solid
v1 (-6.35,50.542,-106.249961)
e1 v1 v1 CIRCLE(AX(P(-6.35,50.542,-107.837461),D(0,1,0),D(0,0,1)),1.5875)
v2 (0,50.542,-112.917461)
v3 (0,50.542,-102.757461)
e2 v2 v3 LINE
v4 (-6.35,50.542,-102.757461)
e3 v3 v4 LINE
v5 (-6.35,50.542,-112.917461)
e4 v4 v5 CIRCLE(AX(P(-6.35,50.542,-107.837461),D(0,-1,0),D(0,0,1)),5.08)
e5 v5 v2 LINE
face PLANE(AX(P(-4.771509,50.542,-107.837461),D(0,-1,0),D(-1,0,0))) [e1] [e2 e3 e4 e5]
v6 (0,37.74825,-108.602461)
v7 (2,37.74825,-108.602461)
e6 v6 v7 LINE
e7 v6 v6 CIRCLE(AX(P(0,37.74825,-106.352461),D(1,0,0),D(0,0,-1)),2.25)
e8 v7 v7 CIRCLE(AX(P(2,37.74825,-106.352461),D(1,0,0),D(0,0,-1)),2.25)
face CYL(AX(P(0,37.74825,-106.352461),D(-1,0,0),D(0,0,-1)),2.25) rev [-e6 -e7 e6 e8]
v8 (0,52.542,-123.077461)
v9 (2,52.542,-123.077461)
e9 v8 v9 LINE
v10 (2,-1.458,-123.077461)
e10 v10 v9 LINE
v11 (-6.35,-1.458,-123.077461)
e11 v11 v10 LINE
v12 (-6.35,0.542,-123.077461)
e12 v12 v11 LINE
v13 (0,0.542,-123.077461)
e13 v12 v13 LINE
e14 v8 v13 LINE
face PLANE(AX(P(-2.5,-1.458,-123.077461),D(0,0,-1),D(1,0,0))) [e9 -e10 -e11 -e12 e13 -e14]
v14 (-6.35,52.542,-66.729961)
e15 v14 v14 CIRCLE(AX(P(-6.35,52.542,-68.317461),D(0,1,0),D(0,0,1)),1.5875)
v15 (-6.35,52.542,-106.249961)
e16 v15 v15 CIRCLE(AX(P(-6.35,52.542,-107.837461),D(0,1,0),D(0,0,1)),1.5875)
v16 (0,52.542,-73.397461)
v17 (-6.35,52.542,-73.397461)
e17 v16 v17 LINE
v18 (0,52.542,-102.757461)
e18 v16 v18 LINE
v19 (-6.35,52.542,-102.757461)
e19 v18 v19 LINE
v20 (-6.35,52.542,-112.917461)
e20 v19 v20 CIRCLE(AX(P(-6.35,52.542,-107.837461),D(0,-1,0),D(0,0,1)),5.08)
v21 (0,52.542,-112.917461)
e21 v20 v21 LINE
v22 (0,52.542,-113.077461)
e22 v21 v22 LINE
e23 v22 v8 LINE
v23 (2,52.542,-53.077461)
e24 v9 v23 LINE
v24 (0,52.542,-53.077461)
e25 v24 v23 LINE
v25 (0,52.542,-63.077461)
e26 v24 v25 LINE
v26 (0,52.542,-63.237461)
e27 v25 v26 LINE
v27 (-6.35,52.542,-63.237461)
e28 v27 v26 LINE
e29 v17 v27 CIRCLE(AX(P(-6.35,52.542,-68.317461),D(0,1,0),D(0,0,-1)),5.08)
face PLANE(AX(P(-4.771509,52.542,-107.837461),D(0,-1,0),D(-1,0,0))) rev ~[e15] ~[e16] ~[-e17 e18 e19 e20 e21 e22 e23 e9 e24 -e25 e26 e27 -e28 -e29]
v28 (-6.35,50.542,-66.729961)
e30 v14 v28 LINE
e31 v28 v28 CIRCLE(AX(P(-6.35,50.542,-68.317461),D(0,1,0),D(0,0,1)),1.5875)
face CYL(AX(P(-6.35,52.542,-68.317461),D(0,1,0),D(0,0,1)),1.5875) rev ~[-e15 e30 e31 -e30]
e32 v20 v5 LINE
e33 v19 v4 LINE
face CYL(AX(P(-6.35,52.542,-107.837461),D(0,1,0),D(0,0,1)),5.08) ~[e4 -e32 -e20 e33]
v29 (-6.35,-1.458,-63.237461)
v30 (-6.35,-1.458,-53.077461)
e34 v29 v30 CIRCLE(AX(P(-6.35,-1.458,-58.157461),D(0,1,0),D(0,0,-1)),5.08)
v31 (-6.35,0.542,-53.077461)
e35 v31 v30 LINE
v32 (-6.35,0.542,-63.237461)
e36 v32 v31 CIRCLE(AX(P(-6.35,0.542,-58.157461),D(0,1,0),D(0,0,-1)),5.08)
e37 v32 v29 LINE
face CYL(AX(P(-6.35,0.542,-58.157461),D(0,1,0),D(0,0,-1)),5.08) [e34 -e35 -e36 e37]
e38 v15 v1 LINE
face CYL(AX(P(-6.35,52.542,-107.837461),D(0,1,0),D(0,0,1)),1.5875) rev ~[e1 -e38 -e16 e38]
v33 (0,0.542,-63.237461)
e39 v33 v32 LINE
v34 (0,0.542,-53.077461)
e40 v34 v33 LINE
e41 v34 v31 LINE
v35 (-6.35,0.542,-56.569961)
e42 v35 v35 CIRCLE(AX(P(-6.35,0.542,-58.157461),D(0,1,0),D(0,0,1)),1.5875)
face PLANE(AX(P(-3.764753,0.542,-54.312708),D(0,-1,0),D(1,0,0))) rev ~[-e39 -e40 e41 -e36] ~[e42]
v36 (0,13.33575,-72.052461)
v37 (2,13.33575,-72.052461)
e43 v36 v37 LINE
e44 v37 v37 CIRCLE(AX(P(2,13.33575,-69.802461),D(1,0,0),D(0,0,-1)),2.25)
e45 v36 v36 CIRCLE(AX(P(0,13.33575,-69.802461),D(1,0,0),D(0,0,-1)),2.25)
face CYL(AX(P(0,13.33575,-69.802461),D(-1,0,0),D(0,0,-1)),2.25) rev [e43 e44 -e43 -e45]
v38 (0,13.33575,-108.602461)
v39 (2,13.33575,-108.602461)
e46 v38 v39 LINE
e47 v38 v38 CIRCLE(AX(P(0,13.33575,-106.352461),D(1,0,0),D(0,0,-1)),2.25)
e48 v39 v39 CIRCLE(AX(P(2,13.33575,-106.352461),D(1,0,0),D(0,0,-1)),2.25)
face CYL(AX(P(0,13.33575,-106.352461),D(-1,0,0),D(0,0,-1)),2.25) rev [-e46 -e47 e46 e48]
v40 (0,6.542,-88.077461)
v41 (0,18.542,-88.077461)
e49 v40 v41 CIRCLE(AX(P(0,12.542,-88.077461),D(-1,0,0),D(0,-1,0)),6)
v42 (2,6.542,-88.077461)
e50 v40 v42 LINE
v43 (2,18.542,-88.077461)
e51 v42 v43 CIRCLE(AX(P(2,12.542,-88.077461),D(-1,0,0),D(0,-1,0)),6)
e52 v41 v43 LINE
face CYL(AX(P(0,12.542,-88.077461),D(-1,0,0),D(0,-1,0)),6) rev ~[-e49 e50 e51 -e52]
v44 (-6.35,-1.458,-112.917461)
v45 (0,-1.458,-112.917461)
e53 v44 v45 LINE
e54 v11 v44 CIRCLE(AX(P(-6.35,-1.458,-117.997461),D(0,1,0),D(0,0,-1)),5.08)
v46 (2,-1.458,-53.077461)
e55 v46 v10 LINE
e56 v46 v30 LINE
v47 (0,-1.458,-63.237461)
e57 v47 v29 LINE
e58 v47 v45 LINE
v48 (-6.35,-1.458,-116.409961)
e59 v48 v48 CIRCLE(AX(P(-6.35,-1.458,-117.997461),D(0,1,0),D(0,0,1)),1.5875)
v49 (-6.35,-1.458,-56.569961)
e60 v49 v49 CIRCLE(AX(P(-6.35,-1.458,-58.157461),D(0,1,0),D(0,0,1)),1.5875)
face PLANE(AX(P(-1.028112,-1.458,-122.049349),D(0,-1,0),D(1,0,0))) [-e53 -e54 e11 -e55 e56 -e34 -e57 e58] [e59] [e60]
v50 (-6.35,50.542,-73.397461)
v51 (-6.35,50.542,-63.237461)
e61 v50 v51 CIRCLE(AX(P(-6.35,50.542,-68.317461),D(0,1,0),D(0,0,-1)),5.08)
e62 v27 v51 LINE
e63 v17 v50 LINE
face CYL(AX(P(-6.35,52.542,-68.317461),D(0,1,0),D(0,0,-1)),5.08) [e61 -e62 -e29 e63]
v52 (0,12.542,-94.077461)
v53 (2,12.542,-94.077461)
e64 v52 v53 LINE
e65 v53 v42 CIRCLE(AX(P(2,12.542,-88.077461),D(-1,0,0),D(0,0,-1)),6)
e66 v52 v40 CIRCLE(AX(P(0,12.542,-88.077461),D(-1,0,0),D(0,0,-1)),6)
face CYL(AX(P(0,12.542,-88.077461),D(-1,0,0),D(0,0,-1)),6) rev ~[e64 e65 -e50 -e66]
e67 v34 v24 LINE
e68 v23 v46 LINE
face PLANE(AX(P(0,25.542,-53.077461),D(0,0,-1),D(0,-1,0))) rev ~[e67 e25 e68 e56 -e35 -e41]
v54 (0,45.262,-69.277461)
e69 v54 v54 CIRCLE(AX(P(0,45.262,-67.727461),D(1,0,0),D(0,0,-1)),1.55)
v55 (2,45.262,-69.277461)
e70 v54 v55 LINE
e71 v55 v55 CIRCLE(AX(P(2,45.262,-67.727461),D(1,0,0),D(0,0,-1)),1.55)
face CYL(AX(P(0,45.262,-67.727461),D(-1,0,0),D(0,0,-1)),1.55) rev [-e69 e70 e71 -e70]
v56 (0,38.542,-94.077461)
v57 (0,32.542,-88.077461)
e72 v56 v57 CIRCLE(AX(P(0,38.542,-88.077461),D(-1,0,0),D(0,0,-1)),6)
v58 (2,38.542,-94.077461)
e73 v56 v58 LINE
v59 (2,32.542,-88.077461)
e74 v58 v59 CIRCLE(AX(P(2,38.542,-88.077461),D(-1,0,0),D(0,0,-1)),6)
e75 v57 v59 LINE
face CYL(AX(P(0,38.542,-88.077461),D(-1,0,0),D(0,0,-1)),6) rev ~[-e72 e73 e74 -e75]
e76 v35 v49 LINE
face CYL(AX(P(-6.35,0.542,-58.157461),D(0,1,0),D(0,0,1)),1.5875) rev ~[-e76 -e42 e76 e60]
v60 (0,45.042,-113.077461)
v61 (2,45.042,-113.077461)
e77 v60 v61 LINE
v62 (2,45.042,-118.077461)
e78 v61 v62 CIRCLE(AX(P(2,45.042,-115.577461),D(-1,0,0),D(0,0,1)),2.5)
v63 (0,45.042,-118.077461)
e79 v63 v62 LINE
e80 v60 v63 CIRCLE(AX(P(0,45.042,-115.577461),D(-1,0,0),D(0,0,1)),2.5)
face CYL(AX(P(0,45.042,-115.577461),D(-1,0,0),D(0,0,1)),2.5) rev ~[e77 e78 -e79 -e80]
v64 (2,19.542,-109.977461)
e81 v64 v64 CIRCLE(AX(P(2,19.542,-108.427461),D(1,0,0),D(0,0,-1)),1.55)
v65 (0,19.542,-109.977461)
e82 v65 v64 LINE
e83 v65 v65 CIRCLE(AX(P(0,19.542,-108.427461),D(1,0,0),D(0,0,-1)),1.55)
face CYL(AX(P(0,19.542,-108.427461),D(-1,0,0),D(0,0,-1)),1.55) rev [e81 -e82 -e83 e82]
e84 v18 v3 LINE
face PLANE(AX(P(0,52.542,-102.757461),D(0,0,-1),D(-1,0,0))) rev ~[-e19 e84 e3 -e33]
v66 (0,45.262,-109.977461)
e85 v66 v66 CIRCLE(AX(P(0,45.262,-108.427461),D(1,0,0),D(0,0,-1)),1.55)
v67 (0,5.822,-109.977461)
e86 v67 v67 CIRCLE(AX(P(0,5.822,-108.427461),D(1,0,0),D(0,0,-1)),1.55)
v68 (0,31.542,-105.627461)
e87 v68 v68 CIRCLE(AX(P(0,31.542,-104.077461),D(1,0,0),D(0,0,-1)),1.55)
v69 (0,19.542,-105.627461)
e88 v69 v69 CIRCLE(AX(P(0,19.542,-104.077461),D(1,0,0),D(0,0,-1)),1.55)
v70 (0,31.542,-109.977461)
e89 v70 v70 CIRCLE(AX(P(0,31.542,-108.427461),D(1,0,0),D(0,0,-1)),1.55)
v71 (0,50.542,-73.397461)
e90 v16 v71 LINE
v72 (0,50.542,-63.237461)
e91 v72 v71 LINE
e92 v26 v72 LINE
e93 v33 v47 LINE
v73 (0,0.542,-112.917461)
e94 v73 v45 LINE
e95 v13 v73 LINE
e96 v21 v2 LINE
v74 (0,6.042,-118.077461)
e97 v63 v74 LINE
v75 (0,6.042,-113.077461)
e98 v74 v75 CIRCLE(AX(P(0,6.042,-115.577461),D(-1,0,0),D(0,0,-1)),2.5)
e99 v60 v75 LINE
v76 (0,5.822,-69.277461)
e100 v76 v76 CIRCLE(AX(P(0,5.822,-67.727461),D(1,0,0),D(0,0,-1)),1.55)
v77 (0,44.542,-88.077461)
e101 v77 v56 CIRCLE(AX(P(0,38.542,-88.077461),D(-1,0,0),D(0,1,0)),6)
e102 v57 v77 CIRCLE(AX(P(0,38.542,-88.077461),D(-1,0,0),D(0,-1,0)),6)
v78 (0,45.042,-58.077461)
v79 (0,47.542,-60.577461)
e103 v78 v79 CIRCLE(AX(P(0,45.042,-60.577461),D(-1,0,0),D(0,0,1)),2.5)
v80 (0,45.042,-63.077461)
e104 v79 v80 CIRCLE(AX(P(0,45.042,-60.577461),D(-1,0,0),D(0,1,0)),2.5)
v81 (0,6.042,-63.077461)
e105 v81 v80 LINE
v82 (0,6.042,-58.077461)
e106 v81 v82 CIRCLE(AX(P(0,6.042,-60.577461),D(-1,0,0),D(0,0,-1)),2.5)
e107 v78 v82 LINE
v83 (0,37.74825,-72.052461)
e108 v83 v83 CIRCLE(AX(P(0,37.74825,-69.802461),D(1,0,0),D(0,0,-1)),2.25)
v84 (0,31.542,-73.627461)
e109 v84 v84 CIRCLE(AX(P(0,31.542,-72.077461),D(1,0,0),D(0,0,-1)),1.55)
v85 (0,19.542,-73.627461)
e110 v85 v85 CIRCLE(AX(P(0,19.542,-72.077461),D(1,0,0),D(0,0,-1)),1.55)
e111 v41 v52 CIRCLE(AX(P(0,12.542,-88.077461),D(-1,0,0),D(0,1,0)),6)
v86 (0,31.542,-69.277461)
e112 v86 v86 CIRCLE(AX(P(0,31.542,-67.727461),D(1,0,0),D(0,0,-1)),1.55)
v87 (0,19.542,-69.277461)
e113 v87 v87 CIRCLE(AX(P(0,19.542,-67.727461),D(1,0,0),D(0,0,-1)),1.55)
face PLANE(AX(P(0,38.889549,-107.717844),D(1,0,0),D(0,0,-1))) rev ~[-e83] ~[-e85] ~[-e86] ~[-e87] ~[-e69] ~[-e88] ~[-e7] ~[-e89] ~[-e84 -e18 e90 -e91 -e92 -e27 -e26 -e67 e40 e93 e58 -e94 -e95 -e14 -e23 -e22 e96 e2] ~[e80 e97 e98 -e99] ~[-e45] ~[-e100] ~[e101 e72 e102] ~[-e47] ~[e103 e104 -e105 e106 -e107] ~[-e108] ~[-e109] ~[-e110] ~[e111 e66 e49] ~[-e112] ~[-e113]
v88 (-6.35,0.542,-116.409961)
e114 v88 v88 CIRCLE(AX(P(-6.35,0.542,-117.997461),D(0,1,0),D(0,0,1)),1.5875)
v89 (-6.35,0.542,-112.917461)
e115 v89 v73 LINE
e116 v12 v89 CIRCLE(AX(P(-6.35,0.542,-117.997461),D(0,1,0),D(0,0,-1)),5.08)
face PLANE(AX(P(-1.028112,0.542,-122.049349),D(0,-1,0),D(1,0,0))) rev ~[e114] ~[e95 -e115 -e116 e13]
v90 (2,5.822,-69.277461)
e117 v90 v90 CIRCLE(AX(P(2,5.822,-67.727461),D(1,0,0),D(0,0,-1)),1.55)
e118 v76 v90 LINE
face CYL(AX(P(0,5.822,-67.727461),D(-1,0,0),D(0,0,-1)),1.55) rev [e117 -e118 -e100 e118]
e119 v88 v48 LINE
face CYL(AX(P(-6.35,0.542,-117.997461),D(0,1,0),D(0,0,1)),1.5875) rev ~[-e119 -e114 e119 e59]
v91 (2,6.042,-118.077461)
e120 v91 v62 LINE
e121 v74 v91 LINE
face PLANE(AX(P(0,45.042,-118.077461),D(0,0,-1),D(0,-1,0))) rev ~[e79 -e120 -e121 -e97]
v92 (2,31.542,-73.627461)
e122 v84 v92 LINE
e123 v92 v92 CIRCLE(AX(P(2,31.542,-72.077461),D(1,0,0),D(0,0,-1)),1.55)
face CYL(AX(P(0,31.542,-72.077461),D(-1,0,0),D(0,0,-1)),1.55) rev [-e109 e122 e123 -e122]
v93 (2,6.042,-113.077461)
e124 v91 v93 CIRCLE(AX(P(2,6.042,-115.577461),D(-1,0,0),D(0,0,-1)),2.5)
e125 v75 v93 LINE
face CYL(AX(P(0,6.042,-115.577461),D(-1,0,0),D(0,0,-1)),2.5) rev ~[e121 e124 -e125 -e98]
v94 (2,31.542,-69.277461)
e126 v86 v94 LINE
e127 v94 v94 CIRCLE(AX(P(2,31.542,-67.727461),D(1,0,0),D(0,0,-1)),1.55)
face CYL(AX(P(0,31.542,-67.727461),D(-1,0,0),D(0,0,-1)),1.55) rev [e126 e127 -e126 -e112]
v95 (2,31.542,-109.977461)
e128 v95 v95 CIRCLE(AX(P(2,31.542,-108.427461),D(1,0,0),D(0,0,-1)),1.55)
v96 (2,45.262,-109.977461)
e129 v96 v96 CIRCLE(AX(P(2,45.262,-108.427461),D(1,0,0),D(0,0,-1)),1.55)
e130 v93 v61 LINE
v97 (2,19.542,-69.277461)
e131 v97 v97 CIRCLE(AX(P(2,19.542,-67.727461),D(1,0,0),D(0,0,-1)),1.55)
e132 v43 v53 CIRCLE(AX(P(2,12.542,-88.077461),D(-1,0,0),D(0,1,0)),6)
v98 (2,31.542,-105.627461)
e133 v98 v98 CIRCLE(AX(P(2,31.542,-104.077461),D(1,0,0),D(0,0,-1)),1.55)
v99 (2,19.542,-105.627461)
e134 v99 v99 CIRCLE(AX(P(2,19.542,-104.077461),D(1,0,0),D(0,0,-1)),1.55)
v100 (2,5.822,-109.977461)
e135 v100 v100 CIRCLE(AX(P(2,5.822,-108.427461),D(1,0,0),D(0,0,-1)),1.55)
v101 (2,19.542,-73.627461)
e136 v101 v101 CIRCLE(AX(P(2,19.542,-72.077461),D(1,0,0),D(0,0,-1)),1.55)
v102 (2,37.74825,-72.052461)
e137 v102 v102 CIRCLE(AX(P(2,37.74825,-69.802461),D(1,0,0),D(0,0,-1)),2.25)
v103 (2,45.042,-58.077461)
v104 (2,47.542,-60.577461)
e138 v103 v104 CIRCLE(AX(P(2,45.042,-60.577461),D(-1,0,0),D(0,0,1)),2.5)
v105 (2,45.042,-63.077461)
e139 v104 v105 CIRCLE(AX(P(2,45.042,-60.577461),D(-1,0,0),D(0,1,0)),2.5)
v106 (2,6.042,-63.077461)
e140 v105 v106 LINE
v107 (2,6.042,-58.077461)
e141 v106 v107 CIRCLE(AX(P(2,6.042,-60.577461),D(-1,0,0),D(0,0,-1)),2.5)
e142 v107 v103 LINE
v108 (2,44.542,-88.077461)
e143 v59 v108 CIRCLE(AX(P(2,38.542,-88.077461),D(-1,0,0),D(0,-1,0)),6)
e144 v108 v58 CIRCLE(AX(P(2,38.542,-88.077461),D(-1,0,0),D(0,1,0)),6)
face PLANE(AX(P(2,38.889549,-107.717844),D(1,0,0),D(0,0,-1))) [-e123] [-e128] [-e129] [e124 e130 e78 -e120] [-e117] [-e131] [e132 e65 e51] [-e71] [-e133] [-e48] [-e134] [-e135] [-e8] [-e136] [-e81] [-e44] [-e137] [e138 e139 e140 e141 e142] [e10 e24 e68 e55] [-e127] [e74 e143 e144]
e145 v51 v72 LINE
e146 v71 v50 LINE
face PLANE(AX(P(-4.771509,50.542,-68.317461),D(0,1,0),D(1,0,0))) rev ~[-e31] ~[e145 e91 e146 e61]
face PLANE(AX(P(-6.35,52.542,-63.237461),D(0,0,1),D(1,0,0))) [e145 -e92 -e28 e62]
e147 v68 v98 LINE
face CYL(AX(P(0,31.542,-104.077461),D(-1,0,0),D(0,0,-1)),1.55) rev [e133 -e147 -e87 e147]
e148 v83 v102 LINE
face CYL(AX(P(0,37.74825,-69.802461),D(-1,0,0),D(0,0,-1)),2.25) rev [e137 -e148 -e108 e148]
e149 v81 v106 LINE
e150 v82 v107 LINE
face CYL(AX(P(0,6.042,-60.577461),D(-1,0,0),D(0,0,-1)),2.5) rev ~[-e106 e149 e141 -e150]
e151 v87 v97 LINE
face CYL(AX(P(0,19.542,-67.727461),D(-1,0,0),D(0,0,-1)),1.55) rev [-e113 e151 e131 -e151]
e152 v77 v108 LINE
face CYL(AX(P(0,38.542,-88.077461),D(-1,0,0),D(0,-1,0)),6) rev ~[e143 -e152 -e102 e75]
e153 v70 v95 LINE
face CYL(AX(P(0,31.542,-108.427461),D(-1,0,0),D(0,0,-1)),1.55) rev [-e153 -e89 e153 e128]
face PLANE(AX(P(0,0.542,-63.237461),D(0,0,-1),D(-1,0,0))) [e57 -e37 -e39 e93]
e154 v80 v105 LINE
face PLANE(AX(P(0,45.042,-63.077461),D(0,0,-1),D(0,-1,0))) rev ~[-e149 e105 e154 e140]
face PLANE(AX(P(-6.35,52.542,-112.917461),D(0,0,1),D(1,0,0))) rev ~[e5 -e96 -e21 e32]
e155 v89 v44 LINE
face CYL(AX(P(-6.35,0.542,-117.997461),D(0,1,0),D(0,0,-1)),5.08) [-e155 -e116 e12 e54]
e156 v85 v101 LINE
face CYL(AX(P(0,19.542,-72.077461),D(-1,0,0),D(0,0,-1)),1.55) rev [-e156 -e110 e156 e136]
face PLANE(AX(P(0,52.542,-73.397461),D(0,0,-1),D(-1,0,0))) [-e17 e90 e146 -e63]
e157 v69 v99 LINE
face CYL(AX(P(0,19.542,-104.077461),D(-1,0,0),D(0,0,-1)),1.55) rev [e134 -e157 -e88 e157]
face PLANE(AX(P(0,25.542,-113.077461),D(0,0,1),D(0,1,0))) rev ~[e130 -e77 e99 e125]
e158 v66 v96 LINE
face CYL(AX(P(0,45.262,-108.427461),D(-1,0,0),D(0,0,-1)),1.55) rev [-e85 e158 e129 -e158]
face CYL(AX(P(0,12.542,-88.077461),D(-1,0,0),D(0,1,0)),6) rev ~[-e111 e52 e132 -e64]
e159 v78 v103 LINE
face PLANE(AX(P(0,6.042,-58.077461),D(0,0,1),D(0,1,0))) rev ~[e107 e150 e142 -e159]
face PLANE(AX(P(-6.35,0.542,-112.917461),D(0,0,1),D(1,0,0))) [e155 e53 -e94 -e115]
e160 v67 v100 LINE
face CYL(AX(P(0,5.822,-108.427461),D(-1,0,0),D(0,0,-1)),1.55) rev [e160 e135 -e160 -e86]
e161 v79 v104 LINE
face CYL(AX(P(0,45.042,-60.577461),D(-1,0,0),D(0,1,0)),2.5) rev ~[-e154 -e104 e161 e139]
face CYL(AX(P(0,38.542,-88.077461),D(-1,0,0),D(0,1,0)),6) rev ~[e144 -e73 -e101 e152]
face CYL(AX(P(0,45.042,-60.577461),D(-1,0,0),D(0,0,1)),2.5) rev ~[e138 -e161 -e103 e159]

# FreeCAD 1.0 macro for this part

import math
import FreeCAD as App
import Part
import Sketcher
from FreeCAD import Vector
Q = App.Units.Quantity

doc = App.newDocument("Part")
params = doc.addObject("Spreadsheet::Sheet", "Params")
for row, (alias, value) in enumerate([
    ("sketch1_diameter", "3 mm"),
    ("sketch1_radius", "6 mm"),
    ("sketch1_diameter2", "4.5 mm"),
    ("sketch1_radius2", "2.5 mm"),
    ("sketch1_width", "54 mm"),
    ("pad1_length", "2 mm"),
    ("sketch2_radius", "2.5 mm"),
    ("sketch2_width", "2.5 mm"),
    ("pad2_length", "2 mm"),
    ("pocket1_length", "10 mm"),
    ("sketch4_radius", "2.5 mm"),
    ("sketch4_width", "2.5 mm"),
    ("pad3_length", "2 mm"),
    ("sketch5_diameter", "3 mm"),
    ("sketch5_diameter2", "3.1 mm"),
    ("pocket2_length", "2 mm"),
    ("sketch6_radius", "5.08 mm"),
    ("sketch6_width", "6.35 mm"),
    ("pad4_length", "2 mm"),
    ("pocket3_length", "2 mm"),
    ("sketch8_radius", "5.08 mm"),
    ("sketch8_width", "6.35 mm"),
    ("pad5_length", "2 mm"),
], start=1):
    params.set(f"A{row}", alias)
    params.set(f"B{row}", "=" + value)
    params.setAlias(f"B{row}", alias)

body = doc.addObject("PartDesign::Body", "Body")

# Sketch on YZ plane
sketch1 = body.newObject("Sketcher::SketchObject", "Sketch")
sketch1.AttachmentSupport = (doc.getObject("YZ_Plane"), [""])
sketch1.MapMode = "FlatFace"
sketch1.addGeometry([
    Part.LineSegment(Vector(52.5, -53.1, 0), Vector(-1.5, -53.1, 0)),  # 0
    Part.LineSegment(Vector(-1.5, -53.1, 0), Vector(-1.5, -123.1, 0)),  # 1
    Part.LineSegment(Vector(-1.5, -123.1, 0), Vector(52.5, -123.1, 0)),  # 2
    Part.LineSegment(Vector(52.5, -123.1, 0), Vector(52.5, -53.1, 0)),  # 3
    Part.LineSegment(Vector(45, -63.1, 0), Vector(6, -63.1, 0)),  # 4
    Part.ArcOfCircle(Part.Circle(Vector(6, -60.6, 0), Vector(0, 0, 1), 2.5), math.radians(90), math.radians(270)),  # 5
    Part.LineSegment(Vector(6, -58.1, 0), Vector(45, -58.1, 0)),  # 6
    Part.ArcOfCircle(Part.Circle(Vector(45, -60.6, 0), Vector(0, 0, 1), 2.5), math.radians(0), math.radians(90)),  # 7
    Part.ArcOfCircle(Part.Circle(Vector(45, -60.6, 0), Vector(0, 0, 1), 2.5), math.radians(-90), math.radians(0)),  # 8
    Part.ArcOfCircle(Part.Circle(Vector(38.5, -88.1, 0), Vector(0, 0, 1), 6), math.radians(0), math.radians(180)),  # 9
    Part.ArcOfCircle(Part.Circle(Vector(38.5, -88.1, 0), Vector(0, 0, 1), 6), math.radians(-90), math.radians(0)),  # 10
    Part.ArcOfCircle(Part.Circle(Vector(38.5, -88.1, 0), Vector(0, 0, 1), 6), math.radians(180), math.radians(270)),  # 11
    Part.Circle(Vector(31.5, -72.1, 0), Vector(0, 0, 1), 1.5),  # 12
    Part.Circle(Vector(37.7, -69.8, 0), Vector(0, 0, 1), 2.2),  # 13
    Part.ArcOfCircle(Part.Circle(Vector(12.5, -88.1, 0), Vector(0, 0, 1), 6), math.radians(0), math.radians(180)),  # 14
    Part.ArcOfCircle(Part.Circle(Vector(12.5, -88.1, 0), Vector(0, 0, 1), 6), math.radians(-90), math.radians(0)),  # 15
    Part.ArcOfCircle(Part.Circle(Vector(12.5, -88.1, 0), Vector(0, 0, 1), 6), math.radians(180), math.radians(270)),  # 16
    Part.Circle(Vector(19.5, -72.1, 0), Vector(0, 0, 1), 1.5),  # 17
    Part.Circle(Vector(13.3, -69.8, 0), Vector(0, 0, 1), 2.2),  # 18
    Part.LineSegment(Vector(45, -118.1, 0), Vector(6, -118.1, 0)),  # 19
    Part.ArcOfCircle(Part.Circle(Vector(6, -115.6, 0), Vector(0, 0, 1), 2.5), math.radians(90), math.radians(270)),  # 20
    Part.LineSegment(Vector(6, -113.1, 0), Vector(45, -113.1, 0)),  # 21
    Part.ArcOfCircle(Part.Circle(Vector(45, -115.6, 0), Vector(0, 0, 1), 2.5), math.radians(-90), math.radians(90)),  # 22
    Part.Circle(Vector(31.5, -104.1, 0), Vector(0, 0, 1), 1.5),  # 23
    Part.Circle(Vector(37.7, -106.4, 0), Vector(0, 0, 1), 2.2),  # 24
    Part.Circle(Vector(19.5, -104.1, 0), Vector(0, 0, 1), 1.5),  # 25
    Part.Circle(Vector(13.3, -106.4, 0), Vector(0, 0, 1), 2.2),  # 26
], False)
sketch1.addConstraint([
    Sketcher.Constraint("Coincident", 0, 2, 1, 1),
    Sketcher.Constraint("Coincident", 1, 2, 2, 1),
    Sketcher.Constraint("Coincident", 2, 2, 3, 1),
    Sketcher.Constraint("Coincident", 3, 2, 0, 1),
    Sketcher.Constraint("Tangent", 4, 2, 5, 2),
    Sketcher.Constraint("Tangent", 5, 1, 6, 1),
    Sketcher.Constraint("Tangent", 6, 2, 7, 2),
    Sketcher.Constraint("Tangent", 7, 1, 8, 2),
    Sketcher.Constraint("Tangent", 8, 1, 4, 1),
    Sketcher.Constraint("Tangent", 9, 1, 10, 2),
    Sketcher.Constraint("Tangent", 10, 1, 11, 2),
    Sketcher.Constraint("Tangent", 11, 1, 9, 2),
    Sketcher.Constraint("Tangent", 14, 1, 15, 2),
    Sketcher.Constraint("Tangent", 15, 1, 16, 2),
    Sketcher.Constraint("Tangent", 16, 1, 14, 2),
    Sketcher.Constraint("Tangent", 19, 2, 20, 2),
    Sketcher.Constraint("Tangent", 20, 1, 21, 1),
    Sketcher.Constraint("Tangent", 21, 2, 22, 2),
    Sketcher.Constraint("Tangent", 22, 1, 19, 1),
    Sketcher.Constraint("Horizontal", 0),
    Sketcher.Constraint("Vertical", 1),
    Sketcher.Constraint("Horizontal", 2),
    Sketcher.Constraint("Vertical", 3),
    Sketcher.Constraint("Horizontal", 4),
    Sketcher.Constraint("Horizontal", 6),
    Sketcher.Constraint("Horizontal", 19),
    Sketcher.Constraint("Horizontal", 21),
    Sketcher.Constraint("Equal", 5, 7),
    Sketcher.Constraint("Equal", 11, 14),
    Sketcher.Constraint("Equal", 12, 17),
    Sketcher.Constraint("Equal", 13, 18),
    Sketcher.Constraint("Equal", 8, 20),
    Sketcher.Constraint("Equal", 17, 23),
    Sketcher.Constraint("Equal", 18, 24),
    Sketcher.Constraint("Equal", 23, 25),
    Sketcher.Constraint("Equal", 24, 26),
    Sketcher.Constraint("Horizontal", 11, 3, 14, 3),
    Sketcher.Constraint("Horizontal", 12, 3, 17, 3),
    Sketcher.Constraint("Horizontal", 13, 3, 18, 3),
    Sketcher.Constraint("Horizontal", 23, 3, 25, 3),
    Sketcher.Constraint("Horizontal", 24, 3, 26, 3),
    Sketcher.Constraint("Horizontal", 8, 3, 7, 1),
    Sketcher.Constraint("Horizontal", 16, 3, 9, 1),
    Sketcher.Constraint("Horizontal", 9, 1, 11, 1),
    Sketcher.Constraint("Horizontal", 11, 1, 14, 1),
    Sketcher.Constraint("Horizontal", 14, 1, 16, 1),
    Sketcher.Constraint("Vertical", 5, 3, 20, 3),
    Sketcher.Constraint("Vertical", 8, 3, 22, 3),
    Sketcher.Constraint("Vertical", 12, 3, 23, 3),
    Sketcher.Constraint("Vertical", 13, 3, 24, 3),
    Sketcher.Constraint("Vertical", 17, 3, 25, 3),
    Sketcher.Constraint("Vertical", 18, 3, 26, 3),
    Sketcher.Constraint("Vertical", 11, 3, 10, 1),
    Sketcher.Constraint("Vertical", 16, 3, 15, 1),
    Sketcher.Constraint("Diameter", 12, Q("3 mm")),
    Sketcher.Constraint("Radius", 9, Q("6 mm")),
    Sketcher.Constraint("Diameter", 13, Q("4.5 mm")),
    Sketcher.Constraint("Radius", 5, Q("2.5 mm")),
    Sketcher.Constraint("DistanceX", 0, 2, 0, 1, Q("54 mm")),
    Sketcher.Constraint("DistanceX", 4, 2, 4, 1, Q("39 mm")),
    Sketcher.Constraint("DistanceY", 1, 2, 1, 1, Q("70 mm")),
    Sketcher.Constraint("DistanceX", 12, 3, 9, 3, Q("7 mm")),
    Sketcher.Constraint("DistanceY", 9, 3, 12, 3, Q("16 mm")),
    Sketcher.Constraint("DistanceX", 14, 3, 12, 3, Q("19 mm")),
    Sketcher.Constraint("DistanceX", 17, 3, 12, 3, Q("12 mm")),
    Sketcher.Constraint("DistanceY", 23, 3, 9, 3, Q("16 mm")),
    Sketcher.Constraint("DistanceX", 0, 2, 17, 3, Q("21 mm")),
    Sketcher.Constraint("DistanceY", 17, 3, 0, 2, Q("19 mm")),
    Sketcher.Constraint("DistanceY", 4, 2, 0, 2, Q("10 mm")),
    Sketcher.Constraint("DistanceX", 7, 1, 3, 2, Q("5 mm")),
    Sketcher.Constraint("DistanceY", 1, 2, 19, 2, Q("5 mm")),
    Sketcher.Constraint("DistanceX", -1, 1, 5, 3, Q("6.042 mm")),
    Sketcher.Constraint("DistanceY", 12, 3, 13, 3, Q("2.275 mm")),
    Sketcher.Constraint("DistanceY", 24, 3, 23, 3, Q("2.275 mm")),
    Sketcher.Constraint("DistanceY", 5, 3, -1, 1, Q("60.577461 mm")),
    Sketcher.Constraint("DistanceX", -1, 1, 13, 3, Q("37.74825 mm")),
    Sketcher.Constraint("DistanceX", -1, 1, 18, 3, Q("13.33575 mm")),
])
sketch1.setExpression("Constraints[54]", "Params.sketch1_diameter")
sketch1.setExpression("Constraints[55]", "Params.sketch1_radius")
sketch1.setExpression("Constraints[56]", "Params.sketch1_diameter2")
sketch1.setExpression("Constraints[57]", "Params.sketch1_radius2")
sketch1.setExpression("Constraints[58]", "Params.sketch1_width")
pad1 = body.newObject("PartDesign::Pad", "Pad")
pad1.Profile = sketch1
pad1.setExpression("Length", "Params.pad1_length")

# Sketch on XZ plane
sketch2 = body.newObject("Sketcher::SketchObject", "Sketch001")
sketch2.AttachmentSupport = (doc.getObject("XZ_Plane"), [""])
sketch2.MapMode = "FlatFace"
sketch2.AttachmentOffset = App.Placement(Vector(0, 0, 1.458), App.Rotation())
sketch2.addGeometry([
    Part.ArcOfCircle(Part.Circle(Vector(-2.5, -120.6, 0), Vector(0, 0, 1), 2.5), math.radians(90), math.radians(180)),  # 0
    Part.ArcOfCircle(Part.Circle(Vector(-2.5, -120.6, 0), Vector(0, 0, 1), 2.5), math.radians(180), math.radians(270)),  # 1
    Part.LineSegment(Vector(-2.5, -123.1, 0), Vector(0, -123.1, 0)),  # 2
    Part.LineSegment(Vector(0, -123.1, 0), Vector(0, -118.1, 0)),  # 3
    Part.LineSegment(Vector(0, -118.1, 0), Vector(-2.5, -118.1, 0)),  # 4
    Part.ArcOfCircle(Part.Circle(Vector(-2.5, -120.6, 0), Vector(0, 0, 1), 1.6), math.radians(-90), math.radians(0)),  # 5
    Part.ArcOfCircle(Part.Circle(Vector(-2.5, -120.6, 0), Vector(0, 0, 1), 1.6), math.radians(180), math.radians(270)),  # 6
    Part.ArcOfCircle(Part.Circle(Vector(-2.5, -120.6, 0), Vector(0, 0, 1), 1.6), math.radians(90), math.radians(180)),  # 7
    Part.ArcOfCircle(Part.Circle(Vector(-2.5, -120.6, 0), Vector(0, 0, 1), 1.6), math.radians(0), math.radians(90)),  # 8
    Part.ArcOfCircle(Part.Circle(Vector(-2.5, -110.6, 0), Vector(0, 0, 1), 2.5), math.radians(90), math.radians(180)),  # 9
    Part.ArcOfCircle(Part.Circle(Vector(-2.5, -110.6, 0), Vector(0, 0, 1), 2.5), math.radians(180), math.radians(270)),  # 10
    Part.LineSegment(Vector(-2.5, -113.1, 0), Vector(0, -113.1, 0)),  # 11
    Part.LineSegment(Vector(0, -113.1, 0), Vector(0, -108.1, 0)),  # 12
    Part.LineSegment(Vector(0, -108.1, 0), Vector(-2.5, -108.1, 0)),  # 13
    Part.ArcOfCircle(Part.Circle(Vector(-2.5, -110.6, 0), Vector(0, 0, 1), 1.6), math.radians(-90), math.radians(0)),  # 14
    Part.ArcOfCircle(Part.Circle(Vector(-2.5, -110.6, 0), Vector(0, 0, 1), 1.6), math.radians(180), math.radians(270)),  # 15
    Part.ArcOfCircle(Part.Circle(Vector(-2.5, -110.6, 0), Vector(0, 0, 1), 1.6), math.radians(90), math.radians(180)),  # 16
    Part.ArcOfCircle(Part.Circle(Vector(-2.5, -110.6, 0), Vector(0, 0, 1), 1.6), math.radians(0), math.radians(90)),  # 17
    Part.LineSegment(Vector(0, -63.1, 0), Vector(-2.5, -63.1, 0)),  # 18
    Part.ArcOfCircle(Part.Circle(Vector(-2.5, -65.6, 0), Vector(0, 0, 1), 2.5), math.radians(90), math.radians(180)),  # 19
    Part.ArcOfCircle(Part.Circle(Vector(-2.5, -65.6, 0), Vector(0, 0, 1), 2.5), math.radians(180), math.radians(270)),  # 20
    Part.LineSegment(Vector(-2.5, -68.1, 0), Vector(0, -68.1, 0)),  # 21
    Part.LineSegment(Vector(0, -68.1, 0), Vector(0, -63.1, 0)),  # 22
    Part.ArcOfCircle(Part.Circle(Vector(-2.5, -65.6, 0), Vector(0, 0, 1), 1.6), math.radians(0), math.radians(90)),  # 23
    Part.ArcOfCircle(Part.Circle(Vector(-2.5, -65.6, 0), Vector(0, 0, 1), 1.6), math.radians(-90), math.radians(0)),  # 24
    Part.ArcOfCircle(Part.Circle(Vector(-2.5, -65.6, 0), Vector(0, 0, 1), 1.6), math.radians(180), math.radians(270)),  # 25
    Part.ArcOfCircle(Part.Circle(Vector(-2.5, -65.6, 0), Vector(0, 0, 1), 1.6), math.radians(90), math.radians(180)),  # 26
    Part.ArcOfCircle(Part.Circle(Vector(-2.5, -55.6, 0), Vector(0, 0, 1), 2.5), math.radians(90), math.radians(180)),  # 27
    Part.ArcOfCircle(Part.Circle(Vector(-2.5, -55.6, 0), Vector(0, 0, 1), 2.5), math.radians(180), math.radians(270)),  # 28
    Part.LineSegment(Vector(-2.5, -58.1, 0), Vector(0, -58.1, 0)),  # 29
    Part.LineSegment(Vector(0, -58.1, 0), Vector(0, -53.1, 0)),  # 30
    Part.LineSegment(Vector(0, -53.1, 0), Vector(-2.5, -53.1, 0)),  # 31
    Part.ArcOfCircle(Part.Circle(Vector(-2.5, -55.6, 0), Vector(0, 0, 1), 1.6), math.radians(-90), math.radians(0)),  # 32
    Part.ArcOfCircle(Part.Circle(Vector(-2.5, -55.6, 0), Vector(0, 0, 1), 1.6), math.radians(180), math.radians(270)),  # 33
    Part.ArcOfCircle(Part.Circle(Vector(-2.5, -55.6, 0), Vector(0, 0, 1), 1.6), math.radians(90), math.radians(180)),  # 34
    Part.ArcOfCircle(Part.Circle(Vector(-2.5, -55.6, 0), Vector(0, 0, 1), 1.6), math.radians(0), math.radians(90)),  # 35
], False)
sketch2.addConstraint([
    Sketcher.Constraint("Tangent", 0, 2, 1, 1),
    Sketcher.Constraint("Tangent", 1, 2, 2, 1),
    Sketcher.Constraint("Coincident", 2, 2, 3, 1),
    Sketcher.Constraint("Coincident", 3, 2, 4, 1),
    Sketcher.Constraint("Tangent", 4, 2, 0, 1),
    Sketcher.Constraint("Tangent", 5, 1, 6, 2),
    Sketcher.Constraint("Tangent", 6, 1, 7, 2),
    Sketcher.Constraint("Tangent", 7, 1, 8, 2),
    Sketcher.Constraint("Tangent", 8, 1, 5, 2),
    Sketcher.Constraint("Tangent", 9, 2, 10, 1),
    Sketcher.Constraint("Tangent", 10, 2, 11, 1),
    Sketcher.Constraint("Coincident", 11, 2, 12, 1),
    Sketcher.Constraint("Coincident", 12, 2, 13, 1),
    Sketcher.Constraint("Tangent", 13, 2, 9, 1),
    Sketcher.Constraint("Tangent", 14, 1, 15, 2),
    Sketcher.Constraint("Tangent", 15, 1, 16, 2),
    Sketcher.Constraint("Tangent", 16, 1, 17, 2),
    Sketcher.Constraint("Tangent", 17, 1, 14, 2),
    Sketcher.Constraint("Tangent", 18, 2, 19, 1),
    Sketcher.Constraint("Tangent", 19, 2, 20, 1),
    Sketcher.Constraint("Tangent", 20, 2, 21, 1),
    Sketcher.Constraint("Coincident", 21, 2, 22, 1),
    Sketcher.Constraint("Coincident", 22, 2, 18, 1),
    Sketcher.Constraint("Tangent", 23, 1, 24, 2),
    Sketcher.Constraint("Tangent", 24, 1, 25, 2),
    Sketcher.Constraint("Tangent", 25, 1, 26, 2),
    Sketcher.Constraint("Tangent", 26, 1, 23, 2),
    Sketcher.Constraint("Tangent", 27, 2, 28, 1),
    Sketcher.Constraint("Tangent", 28, 2, 29, 1),
    Sketcher.Constraint("Coincident", 29, 2, 30, 1),
    Sketcher.Constraint("Coincident", 30, 2, 31, 1),
    Sketcher.Constraint("Tangent", 31, 2, 27, 1),
    Sketcher.Constraint("Tangent", 32, 1, 33, 2),
    Sketcher.Constraint("Tangent", 33, 1, 34, 2),
    Sketcher.Constraint("Tangent", 34, 1, 35, 2),
    Sketcher.Constraint("Tangent", 35, 1, 32, 2),
    Sketcher.Constraint("Horizontal", 2),
    Sketcher.Constraint("Vertical", 3),
    Sketcher.Constraint("Horizontal", 4),
    Sketcher.Constraint("Horizontal", 11),
    Sketcher.Constraint("Vertical", 12),
    Sketcher.Constraint("Horizontal", 13),
    Sketcher.Constraint("Horizontal", 18),
    Sketcher.Constraint("Horizontal", 21),
    Sketcher.Constraint("Vertical", 22),
    Sketcher.Constraint("Horizontal", 29),
    Sketcher.Constraint("Vertical", 30),
    Sketcher.Constraint("Horizontal", 31),
    Sketcher.Constraint("Coincident", 5, 3, 0, 3),
    Sketcher.Constraint("Coincident", 14, 3, 9, 3),
    Sketcher.Constraint("Coincident", 23, 3, 19, 3),
    Sketcher.Constraint("Coincident", 32, 3, 27, 3),
    Sketcher.Constraint("Equal", 0, 1),
    Sketcher.Constraint("Equal", 5, 6),
    Sketcher.Constraint("Equal", 1, 9),
    Sketcher.Constraint("Equal", 9, 10),
    Sketcher.Constraint("Equal", 8, 14),
    Sketcher.Constraint("Equal", 14, 15),
    Sketcher.Constraint("Equal", 10, 19),
    Sketcher.Constraint("Equal", 19, 20),
    Sketcher.Constraint("Equal", 17, 23),
    Sketcher.Constraint("Equal", 23, 24),
    Sketcher.Constraint("Equal", 20, 27),
    Sketcher.Constraint("Equal", 27, 28),
    Sketcher.Constraint("Equal", 26, 32),
    Sketcher.Constraint("Equal", 32, 33),
    Sketcher.Constraint("PointOnObject", 2, 2, -2),
    Sketcher.Constraint("PointOnObject", 11, 2, -2),
    Sketcher.Constraint("PointOnObject", 21, 2, -2),
    Sketcher.Constraint("PointOnObject", 29, 2, -2),
    Sketcher.Constraint("Horizontal", 8, 3, 0, 2),
    Sketcher.Constraint("Horizontal", 0, 2, 6, 1),
    Sketcher.Constraint("Horizontal", 6, 1, 8, 1),
    Sketcher.Constraint("Horizontal", 17, 3, 9, 2),
    Sketcher.Constraint("Horizontal", 9, 2, 15, 1),
    Sketcher.Constraint("Horizontal", 15, 1, 17, 1),
    Sketcher.Constraint("Horizontal", 26, 3, 19, 2),
    Sketcher.Constraint("Horizontal", 19, 2, 23, 1),
    Sketcher.Constraint("Horizontal", 23, 1, 25, 1),
    Sketcher.Constraint("Horizontal", 35, 3, 27, 2),
    Sketcher.Constraint("Horizontal", 27, 2, 33, 1),
    Sketcher.Constraint("Horizontal", 33, 1, 35, 1),
    Sketcher.Constraint("Vertical", 8, 3, 9, 3),
    Sketcher.Constraint("Vertical", 17, 3, 19, 3),
    Sketcher.Constraint("Vertical", 26, 3, 27, 3),
    Sketcher.Constraint("Vertical", 4, 2, 5, 1),
    Sketcher.Constraint("Vertical", 5, 1, 7, 1),
    Sketcher.Constraint("Vertical", 13, 2, 14, 1),
    Sketcher.Constraint("Vertical", 14, 1, 16, 1),
    Sketcher.Constraint("Vertical", 20, 2, 24, 1),
    Sketcher.Constraint("Vertical", 24, 1, 26, 1),
    Sketcher.Constraint("Vertical", 31, 2, 32, 1),
    Sketcher.Constraint("Vertical", 32, 1, 34, 1),
    Sketcher.Constraint("Radius", 0, Q("2.5 mm")),
    Sketcher.Constraint("DistanceX", 2, 1, 2, 2, Q("2.5 mm")),
    Sketcher.Constraint("DistanceY", 0, 3, 9, 3, Q("10 mm")),
    Sketcher.Constraint("DistanceY", 9, 3, 19, 3, Q("45 mm")),
    Sketcher.Constraint("DistanceY", 19, 3, 27, 3, Q("10 mm")),
    Sketcher.Constraint("Radius", 5, Q("1.5875 mm")),
    Sketcher.Constraint("DistanceY", 0, 3, -1, 1, Q("120.577461 mm")),
])
sketch2.setExpression("Constraints[93]", "Params.sketch2_radius")
sketch2.setExpression("Constraints[94]", "Params.sketch2_width")
pad2 = body.newObject("PartDesign::Pad", "Pad001")
pad2.Profile = sketch2
pad2.setExpression("Length", "Params.pad2_length")
pad2.Reversed = True

# Sketch on XZ plane
sketch3 = body.newObject("Sketcher::SketchObject", "Sketch002")
sketch3.AttachmentSupport = (doc.getObject("XZ_Plane"), [""])
sketch3.MapMode = "FlatFace"
sketch3.AttachmentOffset = App.Placement(Vector(0, 0, -0.542), App.Rotation())
sketch3.addGeometry([
    Part.LineSegment(Vector(-8, -113, 0), Vector(-8, -62, 0)),
    Part.LineSegment(Vector(-8, -62, 0), Vector(0, -62, 0)),
    Part.LineSegment(Vector(0, -62, 0), Vector(0, -113, 0)),
    Part.LineSegment(Vector(0, -113, 0), Vector(-8, -113, 0)),
], False)
sketch3.addConstraint([
    Sketcher.Constraint("Coincident", 0, 2, 1, 1),
    Sketcher.Constraint("Coincident", 1, 2, 2, 1),
    Sketcher.Constraint("Coincident", 2, 2, 3, 1),
    Sketcher.Constraint("Coincident", 3, 2, 0, 1),
    Sketcher.Constraint("Vertical", 0),
    Sketcher.Constraint("Horizontal", 1),
    Sketcher.Constraint("Vertical", 2),
    Sketcher.Constraint("Horizontal", 3),
    Sketcher.Constraint("PointOnObject", 1, 2, -2),
    Sketcher.Constraint("DistanceY", 0, 1, 0, 2, Q("51.057199 mm")),
    Sketcher.Constraint("DistanceX", 1, 1, 1, 2, Q("7.521273 mm")),
    Sketcher.Constraint("DistanceY", 2, 2, -1, 1, Q("113.077461 mm")),
])
pocket1 = body.newObject("PartDesign::Pocket", "Pocket")
pocket1.Profile = sketch3
pocket1.setExpression("Length", "Params.pocket1_length")
pocket1.Reversed = True

# Sketch on XZ plane
sketch4 = body.newObject("Sketcher::SketchObject", "Sketch003")
sketch4.AttachmentSupport = (doc.getObject("XZ_Plane"), [""])
sketch4.MapMode = "FlatFace"
sketch4.AttachmentOffset = App.Placement(Vector(0, 0, -52.542), App.Rotation())
sketch4.addGeometry([
    Part.LineSegment(Vector(-2.5, -108.1, 0), Vector(0, -108.1, 0)),  # 0
    Part.LineSegment(Vector(0, -108.1, 0), Vector(0, -113.1, 0)),  # 1
    Part.LineSegment(Vector(0, -113.1, 0), Vector(-2.5, -113.1, 0)),  # 2
    Part.ArcOfCircle(Part.Circle(Vector(-2.5, -110.6, 0), Vector(0, 0, 1), 2.5), math.radians(90), math.radians(270)),  # 3
    Part.Circle(Vector(-2.5, -110.6, 0), Vector(0, 0, 1), 1.6),  # 4
    Part.LineSegment(Vector(0, -63.1, 0), Vector(0, -68.1, 0)),  # 5
    Part.LineSegment(Vector(0, -68.1, 0), Vector(-2.5, -68.1, 0)),  # 6
    Part.ArcOfCircle(Part.Circle(Vector(-2.5, -65.6, 0), Vector(0, 0, 1), 2.5), math.radians(90), math.radians(270)),  # 7
    Part.LineSegment(Vector(-2.5, -63.1, 0), Vector(0, -63.1, 0)),  # 8
    Part.Circle(Vector(-2.5, -65.6, 0), Vector(0, 0, 1), 1.6),  # 9
], False)
sketch4.addConstraint([
    Sketcher.Constraint("Coincident", 0, 2, 1, 1),
    Sketcher.Constraint("Coincident", 1, 2, 2, 1),
    Sketcher.Constraint("Tangent", 2, 2, 3, 2),
    Sketcher.Constraint("Tangent", 3, 1, 0, 1),
    Sketcher.Constraint("Coincident", 5, 2, 6, 1),
    Sketcher.Constraint("Tangent", 6, 2, 7, 2),
    Sketcher.Constraint("Tangent", 7, 1, 8, 1),
    Sketcher.Constraint("Coincident", 8, 2, 5, 1),
    Sketcher.Constraint("Horizontal", 0),
    Sketcher.Constraint("Vertical", 1),
    Sketcher.Constraint("Horizontal", 2),
    Sketcher.Constraint("Vertical", 5),
    Sketcher.Constraint("Horizontal", 6),
    Sketcher.Constraint("Horizontal", 8),
    Sketcher.Constraint("Coincident", 4, 3, 3, 3),
    Sketcher.Constraint("Coincident", 9, 3, 7, 3),
    Sketcher.Constraint("Equal", 3, 7),
    Sketcher.Constraint("Equal", 4, 9),
    Sketcher.Constraint("PointOnObject", 0, 2, -2),
    Sketcher.Constraint("PointOnObject", 5, 2, -2),
    Sketcher.Constraint("Vertical", 4, 3, 7, 3),
    Sketcher.Constraint("Radius", 3, Q("2.5 mm")),
    Sketcher.Constraint("Diameter", 4, Q("3.175 mm")),
    Sketcher.Constraint("DistanceX", 0, 1, 0, 2, Q("2.5 mm")),
    Sketcher.Constraint("DistanceY", 3, 3, 7, 3, Q("45 mm")),
    Sketcher.Constraint("DistanceY", 3, 3, -1, 1, Q("110.577461 mm")),
])
sketch4.setExpression("Constraints[21]", "Params.sketch4_radius")
sketch4.setExpression("Constraints[23]", "Params.sketch4_width")
pad3 = body.newObject("PartDesign::Pad", "Pad002")
pad3.Profile = sketch4
pad3.setExpression("Length", "Params.pad3_length")

# Sketch on YZ plane
sketch5 = body.newObject("Sketcher::SketchObject", "Sketch004")
sketch5.AttachmentSupport = (doc.getObject("YZ_Plane"), [""])
sketch5.MapMode = "FlatFace"
sketch5.addGeometry([
    Part.Circle(Vector(19.5, -108.4, 0), Vector(0, 0, 1), 1.6),  # 0
    Part.Circle(Vector(19.5, -67.7, 0), Vector(0, 0, 1), 1.6),  # 1
    Part.Circle(Vector(19.5, -72.1, 0), Vector(0, 0, 1), 1.6),  # 2
    Part.Circle(Vector(19.5, -72.1, 0), Vector(0, 0, 1), 1.5),  # 3
    Part.Circle(Vector(31.5, -67.7, 0), Vector(0, 0, 1), 1.6),  # 4
    Part.Circle(Vector(31.5, -72.1, 0), Vector(0, 0, 1), 1.6),  # 5
    Part.Circle(Vector(31.5, -72.1, 0), Vector(0, 0, 1), 1.5),  # 6
    Part.Circle(Vector(31.5, -108.4, 0), Vector(0, 0, 1), 1.6),  # 7
    Part.Circle(Vector(5.8, -67.7, 0), Vector(0, 0, 1), 1.6),  # 8
    Part.Circle(Vector(5.8, -108.4, 0), Vector(0, 0, 1), 1.6),  # 9
    Part.Circle(Vector(19.5, -104.1, 0), Vector(0, 0, 1), 1.6),  # 10
    Part.Circle(Vector(19.5, -104.1, 0), Vector(0, 0, 1), 1.5),  # 11
    Part.Circle(Vector(31.5, -104.1, 0), Vector(0, 0, 1), 1.6),  # 12
    Part.Circle(Vector(31.5, -104.1, 0), Vector(0, 0, 1), 1.5),  # 13
    Part.Circle(Vector(45.3, -108.4, 0), Vector(0, 0, 1), 1.6),  # 14
    Part.Circle(Vector(45.3, -67.7, 0), Vector(0, 0, 1), 1.6),  # 15
], False)
sketch5.addConstraint([
    Sketcher.Constraint("Coincident", 3, 3, 2, 3),
    Sketcher.Constraint("Coincident", 6, 3, 5, 3),
    Sketcher.Constraint("Coincident", 11, 3, 10, 3),
    Sketcher.Constraint("Coincident", 13, 3, 12, 3),
    Sketcher.Constraint("Equal", 0, 1),
    Sketcher.Constraint("Equal", 1, 2),
    Sketcher.Constraint("Equal", 2, 4),
    Sketcher.Constraint("Equal", 4, 5),
    Sketcher.Constraint("Equal", 3, 6),
    Sketcher.Constraint("Equal", 5, 7),
    Sketcher.Constraint("Equal", 7, 8),
    Sketcher.Constraint("Equal", 8, 9),
    Sketcher.Constraint("Equal", 9, 10),
    Sketcher.Constraint("Equal", 6, 11),
    Sketcher.Constraint("Equal", 10, 12),
    Sketcher.Constraint("Equal", 11, 13),
    Sketcher.Constraint("Equal", 12, 14),
    Sketcher.Constraint("Equal", 14, 15),
    Sketcher.Constraint("Horizontal", 1, 3, 4, 3),
    Sketcher.Constraint("Horizontal", 3, 3, 5, 3),
    Sketcher.Constraint("Horizontal", 0, 3, 7, 3),
    Sketcher.Constraint("Horizontal", 4, 3, 8, 3),
    Sketcher.Constraint("Horizontal", 7, 3, 9, 3),
    Sketcher.Constraint("Horizontal", 11, 3, 12, 3),
    Sketcher.Constraint("Horizontal", 9, 3, 14, 3),
    Sketcher.Constraint("Horizontal", 8, 3, 15, 3),
    Sketcher.Constraint("Vertical", 0, 3, 1, 3),
    Sketcher.Constraint("Vertical", 1, 3, 2, 3),
    Sketcher.Constraint("Vertical", 4, 3, 5, 3),
    Sketcher.Constraint("Vertical", 6, 3, 7, 3),
    Sketcher.Constraint("Vertical", 8, 3, 9, 3),
    Sketcher.Constraint("Vertical", 3, 3, 10, 3),
    Sketcher.Constraint("Vertical", 7, 3, 12, 3),
    Sketcher.Constraint("Vertical", 14, 3, 15, 3),
    Sketcher.Constraint("Diameter", 3, Q("3 mm")),
    Sketcher.Constraint("Diameter", 0, Q("3.1 mm")),
    Sketcher.Constraint("DistanceX", 1, 3, 4, 3, Q("12 mm")),
    Sketcher.Constraint("DistanceY", 10, 3, 2, 3, Q("32 mm")),
    Sketcher.Constraint("DistanceY", 0, 3, 1, 3, Q("40.7 mm")),
    Sketcher.Constraint("DistanceY", 2, 3, 1, 3, Q("4.35 mm")),
    Sketcher.Constraint("DistanceX", 8, 3, 1, 3, Q("13.72 mm")),
    Sketcher.Constraint("DistanceX", 7, 3, 14, 3, Q("13.72 mm")),
    Sketcher.Constraint("DistanceX", -1, 1, 0, 3, Q("19.542 mm")),
    Sketcher.Constraint("DistanceY", 0, 3, -1, 1, Q("108.427461 mm")),
])
sketch5.setExpression("Constraints[34]", "Params.sketch5_diameter")
sketch5.setExpression("Constraints[35]", "Params.sketch5_diameter2")
pocket2 = body.newObject("PartDesign::Pocket", "Pocket001")
pocket2.Profile = sketch5
pocket2.setExpression("Length", "Params.pocket2_length")
pocket2.Reversed = True

# Sketch on XZ plane
sketch6 = body.newObject("Sketcher::SketchObject", "Sketch005")
sketch6.AttachmentSupport = (doc.getObject("XZ_Plane"), [""])
sketch6.MapMode = "FlatFace"
sketch6.AttachmentOffset = App.Placement(Vector(0, 0, -0.542), App.Rotation())
sketch6.addGeometry([
    Part.LineSegment(Vector(0, -53.1, 0), Vector(0, -63.2, 0)),  # 0
    Part.LineSegment(Vector(0, -63.2, 0), Vector(-6.3, -63.2, 0)),  # 1
    Part.ArcOfCircle(Part.Circle(Vector(-6.3, -58.2, 0), Vector(0, 0, 1), 5.1), math.radians(90), math.radians(270)),  # 2
    Part.LineSegment(Vector(-6.3, -53.1, 0), Vector(0, -53.1, 0)),  # 3
    Part.Circle(Vector(-6.3, -58.2, 0), Vector(0, 0, 1), 1.6),  # 4
    Part.LineSegment(Vector(0, -123.1, 0), Vector(-6.3, -123.1, 0)),  # 5
    Part.ArcOfCircle(Part.Circle(Vector(-6.3, -118, 0), Vector(0, 0, 1), 5.1), math.radians(90), math.radians(270)),  # 6
    Part.LineSegment(Vector(-6.3, -112.9, 0), Vector(0, -112.9, 0)),  # 7
    Part.LineSegment(Vector(0, -112.9, 0), Vector(0, -123.1, 0)),  # 8
    Part.Circle(Vector(-6.3, -118, 0), Vector(0, 0, 1), 1.6),  # 9
], False)
sketch6.addConstraint([
    Sketcher.Constraint("Coincident", 0, 2, 1, 1),
    Sketcher.Constraint("Tangent", 1, 2, 2, 2),
    Sketcher.Constraint("Tangent", 2, 1, 3, 1),
    Sketcher.Constraint("Coincident", 3, 2, 0, 1),
    Sketcher.Constraint("Tangent", 5, 2, 6, 2),
    Sketcher.Constraint("Tangent", 6, 1, 7, 1),
    Sketcher.Constraint("Coincident", 7, 2, 8, 1),
    Sketcher.Constraint("Coincident", 8, 2, 5, 1),
    Sketcher.Constraint("Vertical", 0),
    Sketcher.Constraint("Horizontal", 1),
    Sketcher.Constraint("Horizontal", 3),
    Sketcher.Constraint("Horizontal", 5),
    Sketcher.Constraint("Horizontal", 7),
    Sketcher.Constraint("Vertical", 8),
    Sketcher.Constraint("Coincident", 4, 3, 2, 3),
    Sketcher.Constraint("Coincident", 9, 3, 6, 3),
    Sketcher.Constraint("Equal", 2, 6),
    Sketcher.Constraint("Equal", 4, 9),
    Sketcher.Constraint("PointOnObject", 0, 2, -2),
    Sketcher.Constraint("PointOnObject", 7, 2, -2),
    Sketcher.Constraint("Vertical", 4, 3, 6, 3),
    Sketcher.Constraint("Radius", 2, Q("5.08 mm")),
    Sketcher.Constraint("Diameter", 4, Q("3.175 mm")),
    Sketcher.Constraint("DistanceX", 1, 2, 1, 1, Q("6.35 mm")),
    Sketcher.Constraint("DistanceY", 6, 3, 2, 3, Q("59.84 mm")),
    Sketcher.Constraint("DistanceY", 2, 3, -1, 1, Q("58.157461 mm")),
])
sketch6.setExpression("Constraints[21]", "Params.sketch6_radius")
sketch6.setExpression("Constraints[23]", "Params.sketch6_width")
pad4 = body.newObject("PartDesign::Pad", "Pad003")
pad4.Profile = sketch6
pad4.setExpression("Length", "Params.pad4_length")

# Sketch on XZ plane
sketch7 = body.newObject("Sketcher::SketchObject", "Sketch006")
sketch7.AttachmentSupport = (doc.getObject("XZ_Plane"), [""])
sketch7.MapMode = "FlatFace"
sketch7.AttachmentOffset = App.Placement(Vector(0, 0, -52.542), App.Rotation())
sketch7.addGeometry([
    Part.LineSegment(Vector(-9, -113, 0), Vector(-9, -61, 0)),
    Part.LineSegment(Vector(-9, -61, 0), Vector(0, -61, 0)),
    Part.LineSegment(Vector(0, -61, 0), Vector(0, -113, 0)),
    Part.LineSegment(Vector(0, -113, 0), Vector(-9, -113, 0)),
], False)
sketch7.addConstraint([
    Sketcher.Constraint("Coincident", 0, 2, 1, 1),
    Sketcher.Constraint("Coincident", 1, 2, 2, 1),
    Sketcher.Constraint("Coincident", 2, 2, 3, 1),
    Sketcher.Constraint("Coincident", 3, 2, 0, 1),
    Sketcher.Constraint("Vertical", 0),
    Sketcher.Constraint("Horizontal", 1),
    Sketcher.Constraint("Vertical", 2),
    Sketcher.Constraint("Horizontal", 3),
    Sketcher.Constraint("PointOnObject", 1, 2, -2),
    Sketcher.Constraint("DistanceX", 1, 1, 1, 2, Q("8.556305 mm")),
    Sketcher.Constraint("DistanceY", 0, 1, 0, 2, Q("51.856152 mm")),
    Sketcher.Constraint("DistanceY", 0, 2, -1, 1, Q("61.221309 mm")),
])
pocket3 = body.newObject("PartDesign::Pocket", "Pocket002")
pocket3.Profile = sketch7
pocket3.setExpression("Length", "Params.pocket3_length")
pocket3.Reversed = True

# Sketch on XZ plane
sketch8 = body.newObject("Sketcher::SketchObject", "Sketch007")
sketch8.AttachmentSupport = (doc.getObject("XZ_Plane"), [""])
sketch8.MapMode = "FlatFace"
sketch8.AttachmentOffset = App.Placement(Vector(0, 0, -52.542), App.Rotation())
sketch8.addGeometry([
    Part.LineSegment(Vector(0, -102.8, 0), Vector(0, -112.9, 0)),  # 0
    Part.LineSegment(Vector(0, -112.9, 0), Vector(-6.3, -112.9, 0)),  # 1
    Part.ArcOfCircle(Part.Circle(Vector(-6.3, -107.8, 0), Vector(0, 0, 1), 5.1), math.radians(90), math.radians(270)),  # 2
    Part.LineSegment(Vector(-6.3, -102.8, 0), Vector(0, -102.8, 0)),  # 3
    Part.Circle(Vector(-6.3, -107.8, 0), Vector(0, 0, 1), 1.6),  # 4
    Part.LineSegment(Vector(0, -73.4, 0), Vector(-6.3, -73.4, 0)),  # 5
    Part.ArcOfCircle(Part.Circle(Vector(-6.3, -68.3, 0), Vector(0, 0, 1), 5.1), math.radians(90), math.radians(270)),  # 6
    Part.LineSegment(Vector(-6.3, -63.2, 0), Vector(0, -63.2, 0)),  # 7
    Part.LineSegment(Vector(0, -63.2, 0), Vector(0, -73.4, 0)),  # 8
    Part.Circle(Vector(-6.3, -68.3, 0), Vector(0, 0, 1), 1.6),  # 9
], False)
sketch8.addConstraint([
    Sketcher.Constraint("Coincident", 0, 2, 1, 1),
    Sketcher.Constraint("Tangent", 1, 2, 2, 2),
    Sketcher.Constraint("Tangent", 2, 1, 3, 1),
    Sketcher.Constraint("Coincident", 3, 2, 0, 1),
    Sketcher.Constraint("Tangent", 5, 2, 6, 2),
    Sketcher.Constraint("Tangent", 6, 1, 7, 1),
    Sketcher.Constraint("Coincident", 7, 2, 8, 1),
    Sketcher.Constraint("Coincident", 8, 2, 5, 1),
    Sketcher.Constraint("Vertical", 0),
    Sketcher.Constraint("Horizontal", 1),
    Sketcher.Constraint("Horizontal", 3),
    Sketcher.Constraint("Horizontal", 5),
    Sketcher.Constraint("Horizontal", 7),
    Sketcher.Constraint("Vertical", 8),
    Sketcher.Constraint("Coincident", 4, 3, 2, 3),
    Sketcher.Constraint("Coincident", 9, 3, 6, 3),
    Sketcher.Constraint("Equal", 2, 6),
    Sketcher.Constraint("Equal", 4, 9),
    Sketcher.Constraint("PointOnObject", 0, 2, -2),
    Sketcher.Constraint("PointOnObject", 7, 2, -2),
    Sketcher.Constraint("Vertical", 4, 3, 6, 3),
    Sketcher.Constraint("Radius", 2, Q("5.08 mm")),
    Sketcher.Constraint("Diameter", 4, Q("3.175 mm")),
    Sketcher.Constraint("DistanceX", 1, 2, 1, 1, Q("6.35 mm")),
    Sketcher.Constraint("DistanceY", 0, 2, 6, 3, Q("44.6 mm")),
    Sketcher.Constraint("DistanceY", 2, 3, -1, 1, Q("107.837461 mm")),
])
sketch8.setExpression("Constraints[21]", "Params.sketch8_radius")
sketch8.setExpression("Constraints[23]", "Params.sketch8_width")
pad5 = body.newObject("PartDesign::Pad", "Pad004")
pad5.Profile = sketch8
pad5.setExpression("Length", "Params.pad5_length")

doc.recompute()
